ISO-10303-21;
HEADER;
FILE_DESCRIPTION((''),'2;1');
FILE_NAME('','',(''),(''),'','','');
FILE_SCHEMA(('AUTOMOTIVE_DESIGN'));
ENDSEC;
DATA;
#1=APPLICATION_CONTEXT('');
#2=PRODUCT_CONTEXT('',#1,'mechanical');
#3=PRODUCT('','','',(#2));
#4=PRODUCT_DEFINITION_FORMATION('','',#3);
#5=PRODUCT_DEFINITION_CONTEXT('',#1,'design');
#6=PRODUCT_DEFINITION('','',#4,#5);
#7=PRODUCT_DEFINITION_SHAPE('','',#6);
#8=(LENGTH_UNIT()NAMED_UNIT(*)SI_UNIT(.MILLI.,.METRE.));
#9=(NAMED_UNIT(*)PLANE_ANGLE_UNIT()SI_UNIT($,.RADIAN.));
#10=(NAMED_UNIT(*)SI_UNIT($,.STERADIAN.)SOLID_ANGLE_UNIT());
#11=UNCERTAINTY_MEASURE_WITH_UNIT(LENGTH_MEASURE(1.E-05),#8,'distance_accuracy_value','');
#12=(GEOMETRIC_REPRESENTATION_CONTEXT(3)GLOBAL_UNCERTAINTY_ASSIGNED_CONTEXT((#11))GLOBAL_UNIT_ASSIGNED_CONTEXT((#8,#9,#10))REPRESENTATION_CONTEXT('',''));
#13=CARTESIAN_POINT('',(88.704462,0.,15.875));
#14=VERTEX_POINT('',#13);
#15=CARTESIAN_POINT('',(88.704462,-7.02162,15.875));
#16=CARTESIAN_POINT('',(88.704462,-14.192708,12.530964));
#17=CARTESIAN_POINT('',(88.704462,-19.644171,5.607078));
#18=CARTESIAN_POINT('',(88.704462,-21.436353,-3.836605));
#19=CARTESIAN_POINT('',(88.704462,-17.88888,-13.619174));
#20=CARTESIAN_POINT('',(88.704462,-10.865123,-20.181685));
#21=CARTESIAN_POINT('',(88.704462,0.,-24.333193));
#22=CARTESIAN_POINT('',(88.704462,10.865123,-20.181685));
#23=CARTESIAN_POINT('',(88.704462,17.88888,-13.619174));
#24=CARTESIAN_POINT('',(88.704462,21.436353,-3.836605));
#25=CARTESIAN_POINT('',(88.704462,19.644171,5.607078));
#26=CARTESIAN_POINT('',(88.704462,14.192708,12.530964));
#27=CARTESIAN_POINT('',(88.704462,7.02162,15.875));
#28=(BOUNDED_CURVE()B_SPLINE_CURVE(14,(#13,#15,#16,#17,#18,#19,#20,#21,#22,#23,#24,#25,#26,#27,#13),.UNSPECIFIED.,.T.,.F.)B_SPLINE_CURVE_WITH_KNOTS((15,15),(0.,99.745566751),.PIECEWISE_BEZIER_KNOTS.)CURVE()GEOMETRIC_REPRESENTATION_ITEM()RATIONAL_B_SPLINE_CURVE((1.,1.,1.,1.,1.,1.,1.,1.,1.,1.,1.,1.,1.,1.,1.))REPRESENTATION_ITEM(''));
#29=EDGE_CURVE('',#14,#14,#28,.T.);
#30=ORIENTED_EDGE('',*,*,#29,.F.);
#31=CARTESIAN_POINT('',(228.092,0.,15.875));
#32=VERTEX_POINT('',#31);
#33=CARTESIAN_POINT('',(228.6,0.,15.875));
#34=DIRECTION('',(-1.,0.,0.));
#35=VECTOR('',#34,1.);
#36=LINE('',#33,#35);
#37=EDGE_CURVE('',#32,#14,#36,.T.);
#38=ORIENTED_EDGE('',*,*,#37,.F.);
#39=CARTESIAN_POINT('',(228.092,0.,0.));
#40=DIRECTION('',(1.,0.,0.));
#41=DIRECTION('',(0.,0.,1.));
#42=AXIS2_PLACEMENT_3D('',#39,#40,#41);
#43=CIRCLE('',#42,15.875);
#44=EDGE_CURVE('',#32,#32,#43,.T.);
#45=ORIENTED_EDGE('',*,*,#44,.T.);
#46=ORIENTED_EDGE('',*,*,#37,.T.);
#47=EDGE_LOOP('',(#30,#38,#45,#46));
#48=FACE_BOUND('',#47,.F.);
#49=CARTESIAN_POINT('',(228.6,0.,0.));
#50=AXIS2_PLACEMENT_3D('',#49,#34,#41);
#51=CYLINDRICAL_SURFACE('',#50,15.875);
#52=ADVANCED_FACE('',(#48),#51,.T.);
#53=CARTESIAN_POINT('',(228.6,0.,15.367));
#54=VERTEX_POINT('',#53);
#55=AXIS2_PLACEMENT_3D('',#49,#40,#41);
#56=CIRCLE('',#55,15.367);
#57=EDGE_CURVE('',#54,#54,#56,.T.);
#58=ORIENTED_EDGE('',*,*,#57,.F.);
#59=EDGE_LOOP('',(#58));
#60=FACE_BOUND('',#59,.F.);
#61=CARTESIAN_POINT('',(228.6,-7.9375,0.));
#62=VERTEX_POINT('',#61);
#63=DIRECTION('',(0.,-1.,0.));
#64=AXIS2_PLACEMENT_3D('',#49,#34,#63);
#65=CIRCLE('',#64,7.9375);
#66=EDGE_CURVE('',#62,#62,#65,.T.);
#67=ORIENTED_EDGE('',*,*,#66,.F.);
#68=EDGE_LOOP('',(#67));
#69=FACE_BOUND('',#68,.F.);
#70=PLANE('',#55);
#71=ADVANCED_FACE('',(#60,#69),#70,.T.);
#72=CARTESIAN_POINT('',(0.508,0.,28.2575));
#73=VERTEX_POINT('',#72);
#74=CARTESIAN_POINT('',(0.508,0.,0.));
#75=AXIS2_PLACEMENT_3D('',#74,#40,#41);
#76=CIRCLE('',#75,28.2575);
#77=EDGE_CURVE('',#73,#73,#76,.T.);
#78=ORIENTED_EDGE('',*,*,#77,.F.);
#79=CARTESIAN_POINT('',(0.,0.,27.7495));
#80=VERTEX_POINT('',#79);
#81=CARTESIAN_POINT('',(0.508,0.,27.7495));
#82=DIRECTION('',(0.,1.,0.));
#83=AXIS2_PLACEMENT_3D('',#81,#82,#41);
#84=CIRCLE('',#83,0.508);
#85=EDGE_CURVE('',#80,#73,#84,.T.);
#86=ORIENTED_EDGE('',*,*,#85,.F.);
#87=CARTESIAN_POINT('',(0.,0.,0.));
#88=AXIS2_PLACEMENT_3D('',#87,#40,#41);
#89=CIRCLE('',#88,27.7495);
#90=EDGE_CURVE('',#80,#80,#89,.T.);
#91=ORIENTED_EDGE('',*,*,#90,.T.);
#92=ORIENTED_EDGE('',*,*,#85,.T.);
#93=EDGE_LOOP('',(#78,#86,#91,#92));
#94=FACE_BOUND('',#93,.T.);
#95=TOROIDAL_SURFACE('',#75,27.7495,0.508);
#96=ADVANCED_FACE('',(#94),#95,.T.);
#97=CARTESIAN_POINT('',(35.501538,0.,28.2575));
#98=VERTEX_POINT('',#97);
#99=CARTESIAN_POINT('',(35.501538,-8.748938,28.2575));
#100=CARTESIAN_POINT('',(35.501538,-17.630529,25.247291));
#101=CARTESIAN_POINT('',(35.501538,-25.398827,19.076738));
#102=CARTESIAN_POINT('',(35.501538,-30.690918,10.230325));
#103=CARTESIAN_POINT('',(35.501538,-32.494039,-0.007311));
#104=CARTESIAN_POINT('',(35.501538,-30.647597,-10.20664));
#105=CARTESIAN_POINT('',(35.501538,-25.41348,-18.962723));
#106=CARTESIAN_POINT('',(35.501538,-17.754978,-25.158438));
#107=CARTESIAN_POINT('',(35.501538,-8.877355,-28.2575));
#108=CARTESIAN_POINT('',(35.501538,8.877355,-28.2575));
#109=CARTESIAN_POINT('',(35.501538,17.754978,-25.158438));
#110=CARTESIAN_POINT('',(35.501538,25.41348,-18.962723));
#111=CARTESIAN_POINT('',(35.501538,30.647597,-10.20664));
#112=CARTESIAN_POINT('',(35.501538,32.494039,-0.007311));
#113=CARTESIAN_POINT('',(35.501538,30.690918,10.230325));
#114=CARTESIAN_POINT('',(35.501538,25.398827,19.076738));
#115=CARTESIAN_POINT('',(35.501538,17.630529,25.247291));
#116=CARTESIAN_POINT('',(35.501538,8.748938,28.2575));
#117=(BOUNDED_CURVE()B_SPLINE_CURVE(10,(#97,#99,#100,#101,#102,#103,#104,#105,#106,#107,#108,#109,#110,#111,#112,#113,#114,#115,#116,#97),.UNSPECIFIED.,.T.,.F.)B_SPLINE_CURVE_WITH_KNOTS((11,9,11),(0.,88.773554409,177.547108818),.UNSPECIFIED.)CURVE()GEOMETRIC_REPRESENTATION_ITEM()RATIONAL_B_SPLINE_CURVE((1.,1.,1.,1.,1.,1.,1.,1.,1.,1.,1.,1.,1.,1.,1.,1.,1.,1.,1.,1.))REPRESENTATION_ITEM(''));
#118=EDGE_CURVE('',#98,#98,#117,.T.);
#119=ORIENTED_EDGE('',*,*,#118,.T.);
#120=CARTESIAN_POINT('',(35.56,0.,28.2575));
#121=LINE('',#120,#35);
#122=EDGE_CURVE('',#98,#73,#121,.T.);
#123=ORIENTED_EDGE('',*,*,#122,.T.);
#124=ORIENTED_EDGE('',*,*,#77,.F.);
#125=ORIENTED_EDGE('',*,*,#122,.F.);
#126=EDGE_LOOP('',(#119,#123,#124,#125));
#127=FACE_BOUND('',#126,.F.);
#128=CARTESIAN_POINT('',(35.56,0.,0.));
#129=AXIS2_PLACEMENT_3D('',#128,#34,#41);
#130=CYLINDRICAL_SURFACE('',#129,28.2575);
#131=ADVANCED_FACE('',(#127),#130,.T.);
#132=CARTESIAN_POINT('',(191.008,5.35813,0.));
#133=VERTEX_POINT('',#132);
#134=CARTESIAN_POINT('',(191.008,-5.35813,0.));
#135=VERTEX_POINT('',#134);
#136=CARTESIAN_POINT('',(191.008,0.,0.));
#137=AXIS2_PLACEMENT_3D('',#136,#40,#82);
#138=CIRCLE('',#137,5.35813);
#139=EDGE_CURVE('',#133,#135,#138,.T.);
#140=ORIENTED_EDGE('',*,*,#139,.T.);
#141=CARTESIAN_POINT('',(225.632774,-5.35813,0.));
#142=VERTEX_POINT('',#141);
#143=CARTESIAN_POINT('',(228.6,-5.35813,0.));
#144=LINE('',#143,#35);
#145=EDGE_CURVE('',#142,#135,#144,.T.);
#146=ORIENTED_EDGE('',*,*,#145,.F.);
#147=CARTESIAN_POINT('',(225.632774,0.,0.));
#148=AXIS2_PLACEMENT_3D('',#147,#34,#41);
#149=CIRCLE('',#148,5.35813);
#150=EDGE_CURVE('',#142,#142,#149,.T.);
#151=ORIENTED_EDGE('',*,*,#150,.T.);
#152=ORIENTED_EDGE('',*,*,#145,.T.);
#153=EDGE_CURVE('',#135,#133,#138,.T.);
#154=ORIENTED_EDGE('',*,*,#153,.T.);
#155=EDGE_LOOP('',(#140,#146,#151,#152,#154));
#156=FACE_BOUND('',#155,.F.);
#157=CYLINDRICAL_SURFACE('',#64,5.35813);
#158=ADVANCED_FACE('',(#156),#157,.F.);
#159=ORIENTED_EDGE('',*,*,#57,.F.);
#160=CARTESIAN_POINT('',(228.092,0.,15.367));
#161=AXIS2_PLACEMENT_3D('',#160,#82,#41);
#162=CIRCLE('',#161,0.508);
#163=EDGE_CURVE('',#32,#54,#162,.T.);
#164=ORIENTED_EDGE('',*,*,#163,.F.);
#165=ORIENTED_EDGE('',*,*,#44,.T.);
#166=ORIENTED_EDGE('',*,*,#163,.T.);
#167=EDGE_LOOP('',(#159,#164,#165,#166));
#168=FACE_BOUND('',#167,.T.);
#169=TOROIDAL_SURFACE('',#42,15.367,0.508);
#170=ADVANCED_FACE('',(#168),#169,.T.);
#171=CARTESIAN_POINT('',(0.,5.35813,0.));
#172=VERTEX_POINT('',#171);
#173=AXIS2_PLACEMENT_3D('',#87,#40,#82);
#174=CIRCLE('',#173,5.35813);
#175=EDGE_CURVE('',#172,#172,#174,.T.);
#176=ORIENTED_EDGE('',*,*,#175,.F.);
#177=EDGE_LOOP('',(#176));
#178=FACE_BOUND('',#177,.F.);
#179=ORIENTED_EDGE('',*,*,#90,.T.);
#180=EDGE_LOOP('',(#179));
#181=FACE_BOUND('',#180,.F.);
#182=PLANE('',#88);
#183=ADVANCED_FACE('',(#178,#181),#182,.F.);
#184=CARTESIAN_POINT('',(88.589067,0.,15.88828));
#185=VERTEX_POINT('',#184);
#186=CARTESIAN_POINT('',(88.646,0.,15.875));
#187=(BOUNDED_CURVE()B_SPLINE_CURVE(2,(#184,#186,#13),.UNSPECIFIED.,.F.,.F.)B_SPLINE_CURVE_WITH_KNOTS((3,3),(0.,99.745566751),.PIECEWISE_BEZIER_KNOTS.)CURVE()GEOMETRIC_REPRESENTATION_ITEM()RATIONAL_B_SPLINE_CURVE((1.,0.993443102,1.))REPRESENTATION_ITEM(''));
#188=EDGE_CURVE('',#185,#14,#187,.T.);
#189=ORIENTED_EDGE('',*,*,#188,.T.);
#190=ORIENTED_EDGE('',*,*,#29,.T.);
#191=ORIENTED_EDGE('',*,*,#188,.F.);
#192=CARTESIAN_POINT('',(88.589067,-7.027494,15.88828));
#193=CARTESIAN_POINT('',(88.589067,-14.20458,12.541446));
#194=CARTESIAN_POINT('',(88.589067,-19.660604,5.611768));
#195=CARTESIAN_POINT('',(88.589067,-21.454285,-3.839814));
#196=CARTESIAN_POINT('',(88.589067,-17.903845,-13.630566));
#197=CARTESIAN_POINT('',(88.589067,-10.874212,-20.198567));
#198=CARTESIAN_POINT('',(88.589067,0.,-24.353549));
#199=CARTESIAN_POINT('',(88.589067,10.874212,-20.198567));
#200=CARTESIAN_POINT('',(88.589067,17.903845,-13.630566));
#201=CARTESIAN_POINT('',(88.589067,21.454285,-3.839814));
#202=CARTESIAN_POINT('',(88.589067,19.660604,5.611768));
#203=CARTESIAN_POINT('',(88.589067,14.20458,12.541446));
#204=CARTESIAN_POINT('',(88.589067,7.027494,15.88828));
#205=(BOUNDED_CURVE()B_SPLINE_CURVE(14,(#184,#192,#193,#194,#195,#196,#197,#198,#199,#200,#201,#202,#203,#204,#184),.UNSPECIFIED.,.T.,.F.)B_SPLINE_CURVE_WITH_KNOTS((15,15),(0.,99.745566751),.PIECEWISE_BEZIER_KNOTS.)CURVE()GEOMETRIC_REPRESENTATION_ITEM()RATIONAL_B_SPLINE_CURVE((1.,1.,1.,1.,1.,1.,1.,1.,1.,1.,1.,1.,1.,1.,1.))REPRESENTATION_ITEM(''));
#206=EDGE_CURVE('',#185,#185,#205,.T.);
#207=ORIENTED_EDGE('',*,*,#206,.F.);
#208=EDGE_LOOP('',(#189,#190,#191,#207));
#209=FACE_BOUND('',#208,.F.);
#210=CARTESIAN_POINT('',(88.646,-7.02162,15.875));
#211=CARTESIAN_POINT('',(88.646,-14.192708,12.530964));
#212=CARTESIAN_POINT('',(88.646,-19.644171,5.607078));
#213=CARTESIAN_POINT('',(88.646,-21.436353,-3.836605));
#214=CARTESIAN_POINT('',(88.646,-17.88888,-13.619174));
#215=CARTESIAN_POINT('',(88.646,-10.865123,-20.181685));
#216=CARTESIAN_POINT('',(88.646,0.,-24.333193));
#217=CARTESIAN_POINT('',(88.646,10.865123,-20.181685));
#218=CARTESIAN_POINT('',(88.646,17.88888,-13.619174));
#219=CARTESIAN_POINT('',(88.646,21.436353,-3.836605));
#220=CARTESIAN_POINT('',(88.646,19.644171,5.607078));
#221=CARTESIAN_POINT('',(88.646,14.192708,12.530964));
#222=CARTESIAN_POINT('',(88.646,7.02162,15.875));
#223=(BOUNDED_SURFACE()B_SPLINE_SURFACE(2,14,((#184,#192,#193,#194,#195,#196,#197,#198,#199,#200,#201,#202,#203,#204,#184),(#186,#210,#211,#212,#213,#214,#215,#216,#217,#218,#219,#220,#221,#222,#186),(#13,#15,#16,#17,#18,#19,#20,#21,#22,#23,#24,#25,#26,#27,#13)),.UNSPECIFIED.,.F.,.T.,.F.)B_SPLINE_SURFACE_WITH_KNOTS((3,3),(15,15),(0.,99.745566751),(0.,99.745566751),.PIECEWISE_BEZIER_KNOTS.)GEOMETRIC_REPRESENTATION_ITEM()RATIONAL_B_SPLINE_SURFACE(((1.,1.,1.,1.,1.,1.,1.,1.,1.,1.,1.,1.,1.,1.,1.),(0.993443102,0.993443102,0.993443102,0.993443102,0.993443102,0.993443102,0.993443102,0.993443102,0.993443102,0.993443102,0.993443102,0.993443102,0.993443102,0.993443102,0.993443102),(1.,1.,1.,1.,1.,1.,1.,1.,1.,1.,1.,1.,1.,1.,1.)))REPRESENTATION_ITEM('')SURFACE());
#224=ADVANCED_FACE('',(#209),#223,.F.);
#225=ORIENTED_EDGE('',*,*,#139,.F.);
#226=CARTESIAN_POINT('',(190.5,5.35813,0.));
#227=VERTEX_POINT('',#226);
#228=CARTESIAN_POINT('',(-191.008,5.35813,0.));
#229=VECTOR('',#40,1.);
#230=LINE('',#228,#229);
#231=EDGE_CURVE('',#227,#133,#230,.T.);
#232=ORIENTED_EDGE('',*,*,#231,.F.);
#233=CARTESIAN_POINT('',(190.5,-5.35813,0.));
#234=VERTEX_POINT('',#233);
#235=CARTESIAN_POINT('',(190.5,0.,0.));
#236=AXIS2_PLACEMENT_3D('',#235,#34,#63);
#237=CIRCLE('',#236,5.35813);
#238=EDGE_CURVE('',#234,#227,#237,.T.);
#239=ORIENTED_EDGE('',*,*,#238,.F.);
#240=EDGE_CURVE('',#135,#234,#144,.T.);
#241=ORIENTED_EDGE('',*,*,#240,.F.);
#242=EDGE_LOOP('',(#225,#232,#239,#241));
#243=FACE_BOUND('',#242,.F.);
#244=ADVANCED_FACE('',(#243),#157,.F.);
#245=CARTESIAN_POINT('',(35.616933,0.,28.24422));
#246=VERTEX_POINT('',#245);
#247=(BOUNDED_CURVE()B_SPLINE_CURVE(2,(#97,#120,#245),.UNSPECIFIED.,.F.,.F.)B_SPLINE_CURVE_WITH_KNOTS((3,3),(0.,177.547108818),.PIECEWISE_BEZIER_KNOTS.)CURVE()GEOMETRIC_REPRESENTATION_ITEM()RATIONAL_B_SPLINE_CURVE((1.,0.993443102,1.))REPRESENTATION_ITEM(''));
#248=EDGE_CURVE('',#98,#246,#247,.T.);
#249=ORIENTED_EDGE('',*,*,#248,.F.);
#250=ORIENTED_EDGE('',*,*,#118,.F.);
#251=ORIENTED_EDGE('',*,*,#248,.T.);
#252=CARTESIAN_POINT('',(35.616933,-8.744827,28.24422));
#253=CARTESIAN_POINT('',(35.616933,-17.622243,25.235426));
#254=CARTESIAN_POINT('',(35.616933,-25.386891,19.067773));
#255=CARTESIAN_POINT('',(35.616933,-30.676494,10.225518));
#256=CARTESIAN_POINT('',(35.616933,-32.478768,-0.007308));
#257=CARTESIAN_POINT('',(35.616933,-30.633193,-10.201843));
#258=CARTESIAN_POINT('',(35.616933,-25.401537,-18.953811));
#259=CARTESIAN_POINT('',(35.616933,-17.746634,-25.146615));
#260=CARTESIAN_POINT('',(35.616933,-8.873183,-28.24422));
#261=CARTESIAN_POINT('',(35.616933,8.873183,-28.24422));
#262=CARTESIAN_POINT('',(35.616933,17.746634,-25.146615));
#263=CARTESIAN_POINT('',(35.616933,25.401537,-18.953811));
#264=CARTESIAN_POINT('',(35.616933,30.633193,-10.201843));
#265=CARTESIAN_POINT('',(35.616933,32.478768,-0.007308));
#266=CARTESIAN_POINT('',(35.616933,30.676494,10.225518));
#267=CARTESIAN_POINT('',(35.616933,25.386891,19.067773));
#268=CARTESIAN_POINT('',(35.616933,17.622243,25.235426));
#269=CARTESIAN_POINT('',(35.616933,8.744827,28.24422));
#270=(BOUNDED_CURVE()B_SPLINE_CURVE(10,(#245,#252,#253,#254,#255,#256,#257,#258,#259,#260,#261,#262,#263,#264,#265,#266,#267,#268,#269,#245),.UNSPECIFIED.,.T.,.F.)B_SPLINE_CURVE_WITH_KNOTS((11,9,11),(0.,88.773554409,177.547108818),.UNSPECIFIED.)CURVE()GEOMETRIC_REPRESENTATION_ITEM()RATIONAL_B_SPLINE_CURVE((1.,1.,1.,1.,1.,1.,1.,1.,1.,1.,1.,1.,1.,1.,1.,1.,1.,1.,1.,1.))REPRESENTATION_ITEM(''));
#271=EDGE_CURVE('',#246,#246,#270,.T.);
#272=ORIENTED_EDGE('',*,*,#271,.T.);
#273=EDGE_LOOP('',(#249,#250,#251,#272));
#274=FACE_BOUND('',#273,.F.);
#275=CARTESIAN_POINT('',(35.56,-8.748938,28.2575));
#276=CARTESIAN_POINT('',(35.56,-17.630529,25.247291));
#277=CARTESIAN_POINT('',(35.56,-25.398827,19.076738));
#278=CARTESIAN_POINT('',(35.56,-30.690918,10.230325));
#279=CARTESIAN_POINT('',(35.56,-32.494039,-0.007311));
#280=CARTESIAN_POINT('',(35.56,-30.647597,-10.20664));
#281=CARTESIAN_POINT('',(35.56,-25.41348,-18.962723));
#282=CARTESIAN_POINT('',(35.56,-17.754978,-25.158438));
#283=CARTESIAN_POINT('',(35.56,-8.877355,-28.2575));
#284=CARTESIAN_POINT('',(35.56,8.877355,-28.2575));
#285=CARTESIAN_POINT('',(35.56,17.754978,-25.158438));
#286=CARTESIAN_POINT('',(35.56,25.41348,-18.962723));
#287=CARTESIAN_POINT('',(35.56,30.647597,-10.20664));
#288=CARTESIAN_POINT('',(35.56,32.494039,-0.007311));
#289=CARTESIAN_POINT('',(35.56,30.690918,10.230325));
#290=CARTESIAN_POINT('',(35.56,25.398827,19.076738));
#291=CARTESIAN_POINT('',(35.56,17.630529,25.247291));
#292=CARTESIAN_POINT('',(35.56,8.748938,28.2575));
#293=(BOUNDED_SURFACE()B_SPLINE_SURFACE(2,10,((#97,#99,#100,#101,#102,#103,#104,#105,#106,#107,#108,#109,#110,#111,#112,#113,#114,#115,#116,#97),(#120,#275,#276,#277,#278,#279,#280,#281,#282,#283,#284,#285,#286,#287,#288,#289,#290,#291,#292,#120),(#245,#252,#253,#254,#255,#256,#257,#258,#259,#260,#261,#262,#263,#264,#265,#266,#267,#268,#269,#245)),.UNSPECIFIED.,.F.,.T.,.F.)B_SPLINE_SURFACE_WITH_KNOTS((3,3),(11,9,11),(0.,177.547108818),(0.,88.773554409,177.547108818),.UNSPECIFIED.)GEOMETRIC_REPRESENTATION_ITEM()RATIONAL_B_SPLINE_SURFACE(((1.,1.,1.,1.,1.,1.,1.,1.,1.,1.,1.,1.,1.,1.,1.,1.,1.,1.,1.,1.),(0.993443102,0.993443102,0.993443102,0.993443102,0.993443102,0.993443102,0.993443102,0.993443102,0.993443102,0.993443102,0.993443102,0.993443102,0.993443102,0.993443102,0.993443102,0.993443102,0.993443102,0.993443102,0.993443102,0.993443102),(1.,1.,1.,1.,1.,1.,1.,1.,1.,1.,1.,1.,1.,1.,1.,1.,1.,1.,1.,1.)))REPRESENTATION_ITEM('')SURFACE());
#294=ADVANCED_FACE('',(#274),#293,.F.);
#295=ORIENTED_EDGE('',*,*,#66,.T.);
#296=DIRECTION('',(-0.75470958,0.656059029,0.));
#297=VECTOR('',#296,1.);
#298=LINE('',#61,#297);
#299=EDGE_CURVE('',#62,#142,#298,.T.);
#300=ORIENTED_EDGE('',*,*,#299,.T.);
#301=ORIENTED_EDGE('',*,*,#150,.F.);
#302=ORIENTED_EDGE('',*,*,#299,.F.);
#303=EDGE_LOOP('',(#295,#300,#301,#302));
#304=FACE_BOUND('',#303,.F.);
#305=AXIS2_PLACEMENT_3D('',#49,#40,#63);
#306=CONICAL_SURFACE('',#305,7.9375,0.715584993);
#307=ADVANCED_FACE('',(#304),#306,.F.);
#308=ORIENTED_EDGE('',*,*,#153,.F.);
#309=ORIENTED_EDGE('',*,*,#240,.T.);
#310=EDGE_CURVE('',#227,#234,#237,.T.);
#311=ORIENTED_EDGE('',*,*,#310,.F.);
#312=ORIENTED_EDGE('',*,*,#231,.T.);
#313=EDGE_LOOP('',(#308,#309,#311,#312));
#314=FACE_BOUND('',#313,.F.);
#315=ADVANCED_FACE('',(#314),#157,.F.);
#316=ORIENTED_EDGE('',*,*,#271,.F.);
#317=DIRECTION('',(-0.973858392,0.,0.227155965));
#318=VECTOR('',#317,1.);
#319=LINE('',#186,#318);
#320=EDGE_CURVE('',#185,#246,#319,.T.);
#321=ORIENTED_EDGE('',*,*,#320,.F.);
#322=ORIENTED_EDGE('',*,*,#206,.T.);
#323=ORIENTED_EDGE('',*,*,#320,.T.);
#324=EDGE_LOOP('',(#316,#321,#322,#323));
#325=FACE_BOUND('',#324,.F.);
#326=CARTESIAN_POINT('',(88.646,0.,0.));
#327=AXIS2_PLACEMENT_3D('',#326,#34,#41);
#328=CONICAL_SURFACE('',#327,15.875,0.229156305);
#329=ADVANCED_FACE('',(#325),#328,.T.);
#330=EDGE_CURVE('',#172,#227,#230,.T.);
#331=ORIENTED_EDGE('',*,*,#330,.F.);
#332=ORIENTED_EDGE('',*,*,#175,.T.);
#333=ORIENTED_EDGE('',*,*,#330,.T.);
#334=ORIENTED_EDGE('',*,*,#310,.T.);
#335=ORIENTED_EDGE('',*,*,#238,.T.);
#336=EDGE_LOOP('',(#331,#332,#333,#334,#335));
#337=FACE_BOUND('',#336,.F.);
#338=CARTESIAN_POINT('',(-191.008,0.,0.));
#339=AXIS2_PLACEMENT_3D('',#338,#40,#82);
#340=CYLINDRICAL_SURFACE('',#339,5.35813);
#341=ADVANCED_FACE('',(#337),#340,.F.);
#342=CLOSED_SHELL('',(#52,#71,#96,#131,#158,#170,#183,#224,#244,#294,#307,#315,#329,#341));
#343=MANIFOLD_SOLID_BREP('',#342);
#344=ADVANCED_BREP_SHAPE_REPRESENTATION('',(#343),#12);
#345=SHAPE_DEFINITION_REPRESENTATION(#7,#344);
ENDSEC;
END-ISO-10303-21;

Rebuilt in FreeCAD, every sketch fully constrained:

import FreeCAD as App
import Part
import Sketcher
from FreeCAD import Vector
Q = App.Units.Quantity


def edges_at(feature, points):
    """Names of the edges that pass closest to the given points."""
    edges = feature.Shape.Edges
    near = lambda p: min(range(len(edges)), key=lambda i: edges[i].distToShape(Part.Vertex(*p))[0])
    return sorted({f"Edge{near(p) + 1}" for p in points})

doc = App.newDocument("Part")
body = doc.addObject("PartDesign::Body", "Body")

# Sketch on XZ plane
sketch1 = body.newObject("Sketcher::SketchObject", "Sketch")
sketch1.AttachmentSupport = (doc.getObject("XZ_Plane"), [""])
sketch1.MapMode = "FlatFace"
sketch1.addGeometry([
    Part.LineSegment(Vector(0, 28.2575, 0), Vector(0, 0, 0)),  # 0
    Part.LineSegment(Vector(0, 0, 0), Vector(228.6, 0, 0)),  # 1
    Part.LineSegment(Vector(228.6, 0, 0), Vector(228.6, 15.875, 0)),  # 2
    Part.LineSegment(Vector(228.6, 15.875, 0), Vector(88.646, 15.875, 0)),  # 3
    Part.LineSegment(Vector(88.646, 15.875, 0), Vector(35.56, 28.2575, 0)),  # 4
    Part.LineSegment(Vector(35.56, 28.2575, 0), Vector(0, 28.2575, 0)),  # 5
], False)
sketch1.addConstraint([
    Sketcher.Constraint("Coincident", 0, 2, 1, 1),
    Sketcher.Constraint("Coincident", 1, 2, 2, 1),
    Sketcher.Constraint("Coincident", 2, 2, 3, 1),
    Sketcher.Constraint("Coincident", 3, 2, 4, 1),
    Sketcher.Constraint("Coincident", 4, 2, 5, 1),
    Sketcher.Constraint("Coincident", 5, 2, 0, 1),
    Sketcher.Constraint("Vertical", 0),
    Sketcher.Constraint("Horizontal", 1),
    Sketcher.Constraint("Vertical", 2),
    Sketcher.Constraint("Horizontal", 3),
    Sketcher.Constraint("Horizontal", 5),
    Sketcher.Constraint("Coincident", 0, 2, -1, 1),
    Sketcher.Constraint("DistanceX", 1, 1, 1, 2, Q("9 in")),
    Sketcher.Constraint("DistanceX", 5, 2, 5, 1, Q("1.4 in")),
    Sketcher.Constraint("DistanceX", 3, 2, 3, 1, Q("5.51 in")),
    Sketcher.Constraint("DistanceY", 2, 1, 2, 2, Q("0.625 in")),
    Sketcher.Constraint("DistanceY", 0, 2, 0, 1, Q("1.1125 in")),
])
revolution = body.newObject("PartDesign::Revolution", "Revolution")
revolution.Profile = sketch1
revolution.ReferenceAxis = (sketch1, ["H_Axis"])
revolution.Angle = 360

# Sketch on YZ plane
sketch2 = body.newObject("Sketcher::SketchObject", "Sketch001")
sketch2.AttachmentSupport = (doc.getObject("YZ_Plane"), [""])
sketch2.MapMode = "FlatFace"
sketch2.AttachmentOffset = App.Placement(Vector(0, 0, 9 * 25.4), App.Rotation())
sketch2.addGeometry(Part.Circle(Vector(0, 0, 0), Vector(0, 0, 1), 5.35813), False)
sketch2.addConstraint([
    Sketcher.Constraint("Coincident", 0, 3, -1, 1),
    Sketcher.Constraint("Diameter", 0, Q("0.4219 in")),
])
doc.recompute()
hole = body.newObject("PartDesign::Hole", "Hole")
hole.Profile = sketch2
hole.ThreadType = "None"
hole.Diameter = Q("0.4219 in")
hole.DepthType = "Dimension"
hole.Depth = Q("1.5 in")
hole.DrillPoint = "Angled"
hole.DrillPointAngle = 118
hole.HoleCutType = "Countersink"
hole.HoleCutDiameter = Q("0.625 in")
hole.HoleCutCountersinkAngle = 82

# Sketch on YZ plane
sketch3 = body.newObject("Sketcher::SketchObject", "Sketch002")
sketch3.AttachmentSupport = (doc.getObject("YZ_Plane"), [""])
sketch3.MapMode = "FlatFace"
sketch3.addGeometry(Part.Circle(Vector(0, 0, 0), Vector(0, 0, 1), 5.35813), False)
sketch3.addConstraint([
    Sketcher.Constraint("Coincident", 0, 3, -1, 1),
    Sketcher.Constraint("Diameter", 0, Q("0.4219 in")),
])
doc.recompute()
hole2 = body.newObject("PartDesign::Hole", "Hole001")
hole2.Profile = sketch3
hole2.ThreadType = "None"
hole2.Diameter = Q("0.4219 in")
hole2.DepthType = "Dimension"
hole2.Depth = Q("7.52 in")
hole2.DrillPoint = "Angled"
hole2.DrillPointAngle = 118
hole2.Reversed = True
doc.recompute()

fillet = body.newObject("PartDesign::Fillet", "Fillet")
fillet.Base = (hole2, edges_at(hole2, [
    (0, 0, -28.258),
    (35.56, 0, -28.258),
    (88.646, 0, -15.875),
    (228.6, 0, -15.875),
]))
fillet.Radius = Q("0.02 in")

doc.recompute()
